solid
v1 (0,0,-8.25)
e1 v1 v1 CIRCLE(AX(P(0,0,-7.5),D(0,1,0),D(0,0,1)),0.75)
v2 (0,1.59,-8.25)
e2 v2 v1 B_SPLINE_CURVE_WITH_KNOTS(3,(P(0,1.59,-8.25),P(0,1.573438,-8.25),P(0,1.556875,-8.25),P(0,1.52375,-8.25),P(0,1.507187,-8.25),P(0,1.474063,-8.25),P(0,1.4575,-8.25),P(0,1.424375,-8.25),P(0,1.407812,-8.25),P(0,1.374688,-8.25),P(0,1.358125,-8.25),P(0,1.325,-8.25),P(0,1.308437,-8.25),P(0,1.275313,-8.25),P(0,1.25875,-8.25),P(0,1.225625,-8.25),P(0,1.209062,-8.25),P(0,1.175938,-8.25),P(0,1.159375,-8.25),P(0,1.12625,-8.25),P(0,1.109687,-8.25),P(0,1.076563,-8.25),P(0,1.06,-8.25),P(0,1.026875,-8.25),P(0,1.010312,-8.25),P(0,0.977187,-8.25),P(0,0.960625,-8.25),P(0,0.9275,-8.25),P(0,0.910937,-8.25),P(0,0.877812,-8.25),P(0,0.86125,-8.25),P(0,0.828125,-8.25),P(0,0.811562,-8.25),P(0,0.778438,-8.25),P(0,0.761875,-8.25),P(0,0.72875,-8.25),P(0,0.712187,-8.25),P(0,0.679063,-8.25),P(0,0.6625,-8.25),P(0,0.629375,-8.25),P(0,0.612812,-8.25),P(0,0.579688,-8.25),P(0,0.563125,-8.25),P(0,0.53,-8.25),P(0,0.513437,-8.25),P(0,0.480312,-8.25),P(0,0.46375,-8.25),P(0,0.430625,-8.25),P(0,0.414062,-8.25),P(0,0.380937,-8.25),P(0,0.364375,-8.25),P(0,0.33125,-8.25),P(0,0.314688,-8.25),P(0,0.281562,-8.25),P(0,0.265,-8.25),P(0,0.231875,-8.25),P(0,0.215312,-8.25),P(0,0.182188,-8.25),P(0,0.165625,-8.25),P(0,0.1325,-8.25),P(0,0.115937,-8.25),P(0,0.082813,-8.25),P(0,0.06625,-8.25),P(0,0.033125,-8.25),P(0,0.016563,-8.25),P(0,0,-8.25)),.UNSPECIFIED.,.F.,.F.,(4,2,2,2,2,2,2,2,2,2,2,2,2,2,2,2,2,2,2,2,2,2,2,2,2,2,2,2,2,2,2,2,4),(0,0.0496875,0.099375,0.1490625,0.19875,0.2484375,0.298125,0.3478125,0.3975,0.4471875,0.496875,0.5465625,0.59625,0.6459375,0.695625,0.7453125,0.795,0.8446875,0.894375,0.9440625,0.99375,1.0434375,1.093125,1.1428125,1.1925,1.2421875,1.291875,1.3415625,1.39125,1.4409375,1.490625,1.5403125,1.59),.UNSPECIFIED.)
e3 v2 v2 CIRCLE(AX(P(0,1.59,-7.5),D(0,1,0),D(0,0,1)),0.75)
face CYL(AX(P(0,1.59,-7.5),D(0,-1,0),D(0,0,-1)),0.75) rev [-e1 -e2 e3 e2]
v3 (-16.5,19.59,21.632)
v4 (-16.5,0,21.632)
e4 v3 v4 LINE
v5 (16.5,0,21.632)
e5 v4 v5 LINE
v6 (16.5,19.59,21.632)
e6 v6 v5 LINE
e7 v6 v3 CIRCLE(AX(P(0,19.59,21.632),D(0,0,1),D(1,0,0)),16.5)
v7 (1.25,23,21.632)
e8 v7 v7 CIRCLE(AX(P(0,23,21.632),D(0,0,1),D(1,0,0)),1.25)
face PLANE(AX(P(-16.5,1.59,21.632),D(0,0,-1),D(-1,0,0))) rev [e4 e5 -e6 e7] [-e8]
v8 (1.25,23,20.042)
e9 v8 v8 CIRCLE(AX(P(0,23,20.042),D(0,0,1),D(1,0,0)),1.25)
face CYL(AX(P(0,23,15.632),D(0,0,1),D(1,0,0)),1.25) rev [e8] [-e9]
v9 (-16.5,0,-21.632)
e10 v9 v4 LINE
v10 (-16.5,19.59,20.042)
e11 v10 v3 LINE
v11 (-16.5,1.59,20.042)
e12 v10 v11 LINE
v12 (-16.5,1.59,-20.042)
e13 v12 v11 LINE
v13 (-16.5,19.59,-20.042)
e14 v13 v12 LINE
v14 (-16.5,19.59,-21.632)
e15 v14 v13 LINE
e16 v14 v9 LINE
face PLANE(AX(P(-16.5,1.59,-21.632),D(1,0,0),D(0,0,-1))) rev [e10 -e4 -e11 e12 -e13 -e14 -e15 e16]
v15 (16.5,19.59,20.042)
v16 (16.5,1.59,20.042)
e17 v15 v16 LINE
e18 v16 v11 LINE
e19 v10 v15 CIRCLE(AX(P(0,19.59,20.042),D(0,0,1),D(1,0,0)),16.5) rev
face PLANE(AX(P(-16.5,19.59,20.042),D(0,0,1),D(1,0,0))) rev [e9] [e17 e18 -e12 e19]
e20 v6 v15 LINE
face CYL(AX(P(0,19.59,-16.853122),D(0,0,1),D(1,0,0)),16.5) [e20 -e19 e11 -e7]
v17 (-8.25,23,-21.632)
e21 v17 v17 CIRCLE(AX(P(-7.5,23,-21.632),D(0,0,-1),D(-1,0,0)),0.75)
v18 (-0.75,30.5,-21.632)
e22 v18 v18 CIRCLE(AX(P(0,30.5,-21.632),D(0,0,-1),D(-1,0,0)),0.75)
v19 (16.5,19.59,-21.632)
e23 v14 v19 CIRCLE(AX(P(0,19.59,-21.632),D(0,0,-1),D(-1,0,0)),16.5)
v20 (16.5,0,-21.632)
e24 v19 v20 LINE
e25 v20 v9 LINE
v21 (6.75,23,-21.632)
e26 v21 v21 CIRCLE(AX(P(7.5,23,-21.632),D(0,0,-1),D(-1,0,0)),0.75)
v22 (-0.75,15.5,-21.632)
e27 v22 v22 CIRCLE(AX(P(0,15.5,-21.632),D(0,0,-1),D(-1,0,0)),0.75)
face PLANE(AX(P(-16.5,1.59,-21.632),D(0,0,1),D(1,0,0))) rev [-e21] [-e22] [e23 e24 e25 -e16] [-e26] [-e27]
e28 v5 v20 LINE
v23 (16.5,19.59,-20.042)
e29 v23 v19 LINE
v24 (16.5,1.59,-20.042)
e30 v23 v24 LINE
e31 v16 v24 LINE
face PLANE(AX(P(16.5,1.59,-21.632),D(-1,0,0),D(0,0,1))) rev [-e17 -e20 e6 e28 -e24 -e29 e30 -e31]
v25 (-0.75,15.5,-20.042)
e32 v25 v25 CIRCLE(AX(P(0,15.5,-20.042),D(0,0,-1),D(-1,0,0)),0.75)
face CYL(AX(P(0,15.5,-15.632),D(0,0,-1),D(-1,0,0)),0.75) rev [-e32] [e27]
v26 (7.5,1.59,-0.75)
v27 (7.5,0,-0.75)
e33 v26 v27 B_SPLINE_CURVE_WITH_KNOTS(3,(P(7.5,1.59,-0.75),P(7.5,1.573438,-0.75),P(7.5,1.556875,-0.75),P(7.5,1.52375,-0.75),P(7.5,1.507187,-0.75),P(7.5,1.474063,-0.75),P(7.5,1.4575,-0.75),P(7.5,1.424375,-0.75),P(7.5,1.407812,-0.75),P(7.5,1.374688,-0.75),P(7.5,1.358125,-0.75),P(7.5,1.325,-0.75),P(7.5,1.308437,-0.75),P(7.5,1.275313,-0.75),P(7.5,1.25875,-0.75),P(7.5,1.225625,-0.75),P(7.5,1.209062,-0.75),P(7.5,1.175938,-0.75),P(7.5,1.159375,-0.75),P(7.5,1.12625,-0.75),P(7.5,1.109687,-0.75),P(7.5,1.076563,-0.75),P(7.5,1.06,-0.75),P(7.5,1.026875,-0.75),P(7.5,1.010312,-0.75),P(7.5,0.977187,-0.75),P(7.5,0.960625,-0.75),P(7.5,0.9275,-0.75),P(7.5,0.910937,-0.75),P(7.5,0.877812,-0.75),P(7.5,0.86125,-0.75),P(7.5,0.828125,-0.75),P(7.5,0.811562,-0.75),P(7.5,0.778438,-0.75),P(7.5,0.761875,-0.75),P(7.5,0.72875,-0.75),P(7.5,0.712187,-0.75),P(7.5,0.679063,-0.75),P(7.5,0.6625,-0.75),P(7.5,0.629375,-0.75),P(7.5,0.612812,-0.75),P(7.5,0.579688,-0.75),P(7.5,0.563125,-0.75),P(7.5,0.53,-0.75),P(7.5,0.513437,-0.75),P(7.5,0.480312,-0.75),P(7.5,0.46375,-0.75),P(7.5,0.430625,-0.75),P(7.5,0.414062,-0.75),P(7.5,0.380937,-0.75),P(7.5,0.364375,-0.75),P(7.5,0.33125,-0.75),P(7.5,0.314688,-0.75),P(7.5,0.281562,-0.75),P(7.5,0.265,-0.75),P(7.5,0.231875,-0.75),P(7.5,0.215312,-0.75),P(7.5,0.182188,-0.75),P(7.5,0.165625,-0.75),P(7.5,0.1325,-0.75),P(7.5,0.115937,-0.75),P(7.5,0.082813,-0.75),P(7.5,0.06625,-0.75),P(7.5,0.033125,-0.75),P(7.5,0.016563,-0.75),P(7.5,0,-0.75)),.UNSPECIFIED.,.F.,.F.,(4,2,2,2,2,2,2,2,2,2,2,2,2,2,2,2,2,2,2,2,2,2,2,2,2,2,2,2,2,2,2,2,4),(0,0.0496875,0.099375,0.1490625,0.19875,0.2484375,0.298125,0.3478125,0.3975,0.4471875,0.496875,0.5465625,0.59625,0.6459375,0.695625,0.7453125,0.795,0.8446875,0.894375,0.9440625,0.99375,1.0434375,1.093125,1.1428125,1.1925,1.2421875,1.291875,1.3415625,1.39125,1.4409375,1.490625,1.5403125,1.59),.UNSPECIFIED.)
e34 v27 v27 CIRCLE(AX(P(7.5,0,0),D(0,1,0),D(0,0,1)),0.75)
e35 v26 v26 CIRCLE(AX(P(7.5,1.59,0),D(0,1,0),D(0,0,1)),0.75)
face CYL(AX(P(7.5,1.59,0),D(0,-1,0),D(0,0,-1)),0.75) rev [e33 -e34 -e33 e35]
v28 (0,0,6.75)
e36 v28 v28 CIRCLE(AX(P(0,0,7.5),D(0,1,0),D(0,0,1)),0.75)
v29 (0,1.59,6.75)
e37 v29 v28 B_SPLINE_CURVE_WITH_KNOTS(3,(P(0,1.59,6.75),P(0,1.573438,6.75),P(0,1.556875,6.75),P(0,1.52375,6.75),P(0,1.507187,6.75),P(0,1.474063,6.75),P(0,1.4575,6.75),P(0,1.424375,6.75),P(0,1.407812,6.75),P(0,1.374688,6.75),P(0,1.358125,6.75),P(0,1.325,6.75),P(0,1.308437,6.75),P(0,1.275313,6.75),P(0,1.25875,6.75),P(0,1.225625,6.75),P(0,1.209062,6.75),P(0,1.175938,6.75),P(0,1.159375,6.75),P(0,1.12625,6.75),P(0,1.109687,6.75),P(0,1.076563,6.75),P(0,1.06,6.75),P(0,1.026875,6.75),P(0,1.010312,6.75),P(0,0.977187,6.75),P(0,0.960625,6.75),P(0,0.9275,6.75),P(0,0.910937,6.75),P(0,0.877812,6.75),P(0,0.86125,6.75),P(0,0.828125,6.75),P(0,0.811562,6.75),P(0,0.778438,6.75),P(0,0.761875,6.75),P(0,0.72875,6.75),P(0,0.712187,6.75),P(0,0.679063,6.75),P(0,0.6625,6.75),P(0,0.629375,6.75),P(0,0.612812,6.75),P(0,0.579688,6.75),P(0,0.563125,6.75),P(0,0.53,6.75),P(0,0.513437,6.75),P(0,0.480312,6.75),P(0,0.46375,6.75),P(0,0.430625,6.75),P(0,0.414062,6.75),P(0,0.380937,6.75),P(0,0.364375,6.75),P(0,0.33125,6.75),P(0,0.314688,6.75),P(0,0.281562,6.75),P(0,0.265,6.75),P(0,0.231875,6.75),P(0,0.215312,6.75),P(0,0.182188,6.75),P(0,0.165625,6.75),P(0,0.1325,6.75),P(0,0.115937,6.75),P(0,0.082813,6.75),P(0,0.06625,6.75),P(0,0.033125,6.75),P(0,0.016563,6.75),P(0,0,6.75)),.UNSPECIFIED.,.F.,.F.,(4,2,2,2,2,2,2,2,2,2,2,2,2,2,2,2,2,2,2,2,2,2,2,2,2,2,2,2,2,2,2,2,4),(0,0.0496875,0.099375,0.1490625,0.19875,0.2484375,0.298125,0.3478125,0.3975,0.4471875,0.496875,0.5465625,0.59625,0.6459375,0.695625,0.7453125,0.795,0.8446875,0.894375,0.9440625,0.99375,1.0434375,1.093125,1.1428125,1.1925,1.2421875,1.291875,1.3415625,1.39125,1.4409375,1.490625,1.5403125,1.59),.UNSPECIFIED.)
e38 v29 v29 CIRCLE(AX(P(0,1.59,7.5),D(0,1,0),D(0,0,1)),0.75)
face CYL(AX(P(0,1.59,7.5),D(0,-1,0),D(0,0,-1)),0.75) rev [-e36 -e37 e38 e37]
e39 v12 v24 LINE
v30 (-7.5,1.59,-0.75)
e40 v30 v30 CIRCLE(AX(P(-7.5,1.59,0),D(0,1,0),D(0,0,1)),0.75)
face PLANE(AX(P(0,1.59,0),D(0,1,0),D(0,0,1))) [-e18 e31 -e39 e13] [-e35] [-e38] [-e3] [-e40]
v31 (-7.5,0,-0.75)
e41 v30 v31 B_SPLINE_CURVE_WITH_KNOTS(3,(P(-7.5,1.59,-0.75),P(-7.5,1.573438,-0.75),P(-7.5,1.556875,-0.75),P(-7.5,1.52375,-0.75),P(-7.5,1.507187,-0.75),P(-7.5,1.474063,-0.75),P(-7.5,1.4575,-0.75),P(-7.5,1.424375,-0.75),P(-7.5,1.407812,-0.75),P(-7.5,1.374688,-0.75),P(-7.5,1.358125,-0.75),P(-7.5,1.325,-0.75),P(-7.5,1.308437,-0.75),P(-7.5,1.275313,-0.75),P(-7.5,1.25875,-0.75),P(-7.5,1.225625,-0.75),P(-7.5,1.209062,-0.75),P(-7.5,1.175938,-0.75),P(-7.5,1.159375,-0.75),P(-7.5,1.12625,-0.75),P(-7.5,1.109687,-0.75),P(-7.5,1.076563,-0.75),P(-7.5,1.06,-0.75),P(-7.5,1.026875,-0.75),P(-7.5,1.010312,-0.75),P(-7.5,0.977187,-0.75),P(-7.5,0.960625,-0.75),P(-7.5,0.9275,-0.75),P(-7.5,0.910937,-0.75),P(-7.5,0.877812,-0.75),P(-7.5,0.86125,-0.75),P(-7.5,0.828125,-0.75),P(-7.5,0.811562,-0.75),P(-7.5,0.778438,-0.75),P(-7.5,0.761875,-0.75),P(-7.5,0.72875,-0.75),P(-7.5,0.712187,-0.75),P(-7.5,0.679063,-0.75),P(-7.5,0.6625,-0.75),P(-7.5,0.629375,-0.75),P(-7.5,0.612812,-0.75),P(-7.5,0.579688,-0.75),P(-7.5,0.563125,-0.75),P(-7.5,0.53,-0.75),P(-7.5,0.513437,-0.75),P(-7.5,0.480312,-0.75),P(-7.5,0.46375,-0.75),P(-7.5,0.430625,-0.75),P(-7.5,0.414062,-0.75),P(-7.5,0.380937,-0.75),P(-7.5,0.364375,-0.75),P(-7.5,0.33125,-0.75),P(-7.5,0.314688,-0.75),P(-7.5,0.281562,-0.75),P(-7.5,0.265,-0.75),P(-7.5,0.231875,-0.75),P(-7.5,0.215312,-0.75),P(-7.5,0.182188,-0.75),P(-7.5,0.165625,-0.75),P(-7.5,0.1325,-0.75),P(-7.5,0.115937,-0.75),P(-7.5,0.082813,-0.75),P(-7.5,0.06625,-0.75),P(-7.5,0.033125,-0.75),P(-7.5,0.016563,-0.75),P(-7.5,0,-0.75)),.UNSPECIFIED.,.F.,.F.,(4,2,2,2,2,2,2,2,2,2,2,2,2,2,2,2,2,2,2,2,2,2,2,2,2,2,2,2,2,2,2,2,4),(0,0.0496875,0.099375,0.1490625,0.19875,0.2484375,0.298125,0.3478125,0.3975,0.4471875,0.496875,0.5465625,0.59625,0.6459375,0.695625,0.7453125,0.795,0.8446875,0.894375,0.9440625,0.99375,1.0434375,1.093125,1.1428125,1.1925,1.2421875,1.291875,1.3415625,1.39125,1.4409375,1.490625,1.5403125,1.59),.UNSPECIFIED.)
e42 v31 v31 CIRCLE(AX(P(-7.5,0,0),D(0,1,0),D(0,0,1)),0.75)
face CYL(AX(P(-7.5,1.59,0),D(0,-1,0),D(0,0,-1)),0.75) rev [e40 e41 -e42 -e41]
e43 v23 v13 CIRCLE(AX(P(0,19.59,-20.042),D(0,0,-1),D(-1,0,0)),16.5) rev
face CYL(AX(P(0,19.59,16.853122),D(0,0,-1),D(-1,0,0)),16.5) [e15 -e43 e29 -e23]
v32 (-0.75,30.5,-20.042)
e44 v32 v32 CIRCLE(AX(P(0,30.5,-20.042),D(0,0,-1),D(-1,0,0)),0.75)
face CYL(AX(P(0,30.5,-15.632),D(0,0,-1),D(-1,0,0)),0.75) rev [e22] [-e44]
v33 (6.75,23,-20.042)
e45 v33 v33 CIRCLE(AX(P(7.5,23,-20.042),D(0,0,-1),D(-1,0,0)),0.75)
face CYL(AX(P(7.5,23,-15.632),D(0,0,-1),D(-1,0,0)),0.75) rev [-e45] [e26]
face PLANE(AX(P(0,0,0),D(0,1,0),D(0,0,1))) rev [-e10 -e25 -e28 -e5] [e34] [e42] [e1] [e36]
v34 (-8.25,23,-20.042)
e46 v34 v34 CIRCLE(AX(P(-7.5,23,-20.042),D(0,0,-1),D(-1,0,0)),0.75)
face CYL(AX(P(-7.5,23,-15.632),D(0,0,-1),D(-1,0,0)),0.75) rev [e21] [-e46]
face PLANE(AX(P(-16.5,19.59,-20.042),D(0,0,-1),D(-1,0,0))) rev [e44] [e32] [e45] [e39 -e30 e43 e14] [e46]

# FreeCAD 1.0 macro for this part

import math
import FreeCAD as App
import Part
import Sketcher


def add_polygon(sketch, points):
    """Adds a closed chain of lines whose ends are joined by coincident constraints."""
    first, n = sketch.GeometryCount, len(points)
    for a, b in zip(points, points[1:] + points[:1]):
        sketch.addGeometry(Part.LineSegment(App.Vector(*a, 0), App.Vector(*b, 0)), False)
    for i in range(n):
        sketch.addConstraint(Sketcher.Constraint("Coincident", first + i, 2, first + (i + 1) % n, 1))

doc = App.newDocument("Part")
body = doc.addObject("PartDesign::Body", "Body")

sketch1 = doc.addObject("Sketcher::SketchObject", "Sketch")
body.addObject(sketch1)
sketch1.AttachmentSupport = (doc.XZ_Plane, [""])
sketch1.MapMode = "FlatFace"
add_polygon(sketch1, [(-16.5, -21.6), (-16.5, 21.6), (16.5, 21.6), (16.5, -21.6)])
sketch1.addGeometry(Part.Circle(App.Vector(0, 7.5, 0), App.Vector(0, 0, 1), 0.8), False)
sketch1.addGeometry(Part.Circle(App.Vector(-7.5, 0, 0), App.Vector(0, 0, 1), 0.8), False)
sketch1.addGeometry(Part.Circle(App.Vector(7.5, 0, 0), App.Vector(0, 0, 1), 0.8), False)
sketch1.addGeometry(Part.Circle(App.Vector(0, -7.5, 0), App.Vector(0, 0, 1), 0.8), False)
sketch1.addConstraint(Sketcher.Constraint("Vertical", 0))
sketch1.addConstraint(Sketcher.Constraint("Horizontal", 1))
sketch1.addConstraint(Sketcher.Constraint("Vertical", 2))
sketch1.addConstraint(Sketcher.Constraint("Horizontal", 3))
sketch1.addConstraint(Sketcher.Constraint("Equal", 4, 5))
sketch1.addConstraint(Sketcher.Constraint("Equal", 5, 6))
sketch1.addConstraint(Sketcher.Constraint("Equal", 6, 7))
sketch1.addConstraint(Sketcher.Constraint("Symmetric", 5, 3, 6, 3, -1, 1))
sketch1.addConstraint(Sketcher.Constraint("Symmetric", 4, 3, 7, 3, -1, 1))
sketch1.addConstraint(Sketcher.Constraint("Symmetric", 0, 2, 2, 2, -1, 1))
sketch1.addConstraint(Sketcher.Constraint("PointOnObject", 4, 3, -2))
sketch1.addConstraint(Sketcher.Constraint("PointOnObject", 5, 3, -1))
sketch1.addConstraint(Sketcher.Constraint("Diameter", 4, 1.5))
sketch1.addConstraint(Sketcher.Constraint("DistanceX", 1, 1, 1, 2, 33.0))
sketch1.addConstraint(Sketcher.Constraint("DistanceX", 5, 3, 6, 3, 15.0))
sketch1.addConstraint(Sketcher.Constraint("DistanceY", 7, 3, 4, 3, 15.0))
sketch1.addConstraint(Sketcher.Constraint("DistanceY", 0, 1, 0, 2, 43.264))
pad1 = doc.addObject("PartDesign::Pad", "Pad")
body.addObject(pad1)
pad1.Profile = sketch1
pad1.Length = 1.59
pad1.Reversed = True

sketch2 = doc.addObject("Sketcher::SketchObject", "Sketch001")
body.addObject(sketch2)
sketch2.AttachmentSupport = (doc.XZ_Plane, [""])
sketch2.MapMode = "FlatFace"
sketch2.AttachmentOffset = App.Placement(App.Vector(0, 0, -1.59), App.Rotation())
add_polygon(sketch2, [(-16.5, -21.6), (-16.5, -20), (16.5, -20), (16.5, -21.6)])
add_polygon(sketch2, [(-16.5, 20), (-16.5, 21.6), (16.5, 21.6), (16.5, 20)])
sketch2.addConstraint(Sketcher.Constraint("Vertical", 0))
sketch2.addConstraint(Sketcher.Constraint("Horizontal", 1))
sketch2.addConstraint(Sketcher.Constraint("Vertical", 2))
sketch2.addConstraint(Sketcher.Constraint("Horizontal", 3))
sketch2.addConstraint(Sketcher.Constraint("Vertical", 4))
sketch2.addConstraint(Sketcher.Constraint("Horizontal", 5))
sketch2.addConstraint(Sketcher.Constraint("Vertical", 6))
sketch2.addConstraint(Sketcher.Constraint("Horizontal", 7))
sketch2.addConstraint(Sketcher.Constraint("Symmetric", 2, 2, 4, 2, -1, 1))
sketch2.addConstraint(Sketcher.Constraint("Symmetric", 0, 2, 6, 2, -1, 1))
sketch2.addConstraint(Sketcher.Constraint("Vertical", 3, 2, 4, 2))
sketch2.addConstraint(Sketcher.Constraint("DistanceX", 1, 1, 1, 2, 33.0))
sketch2.addConstraint(Sketcher.Constraint("DistanceY", 0, 1, 0, 2, 1.59))
sketch2.addConstraint(Sketcher.Constraint("DistanceY", 0, 2, -1, 1, 20.042))
pad2 = doc.addObject("PartDesign::Pad", "Pad001")
body.addObject(pad2)
pad2.Profile = sketch2
pad2.Length = 18
pad2.Reversed = True

sketch3 = doc.addObject("Sketcher::SketchObject", "Sketch002")
body.addObject(sketch3)
sketch3.AttachmentSupport = (doc.XY_Plane, [""])
sketch3.MapMode = "FlatFace"
sketch3.AttachmentOffset = App.Placement(App.Vector(0, 0, 21.632), App.Rotation())
sketch3.addGeometry(Part.LineSegment(App.Vector(-16, 20, 0), App.Vector(16, 20, 0)), False)
sketch3.addGeometry(Part.ArcOfCircle(Part.Circle(App.Vector(0, 20, 0), App.Vector(0, 0, 1), 16), math.radians(0), math.radians(180)), False)
sketch3.addConstraint(Sketcher.Constraint("Coincident", 0, 1, 1, 2))
sketch3.addConstraint(Sketcher.Constraint("Coincident", 1, 1, 0, 2))
sketch3.addConstraint(Sketcher.Constraint("Horizontal", 0))
sketch3.addConstraint(Sketcher.Constraint("PointOnObject", 1, 3, -2))
sketch3.addConstraint(Sketcher.Constraint("Horizontal", 1, 3, 0, 1))
sketch3.addConstraint(Sketcher.Constraint("Radius", 1, 16.5))
sketch3.addConstraint(Sketcher.Constraint("DistanceY", -1, 1, 1, 3, 19.59))
pad3 = doc.addObject("PartDesign::Pad", "Pad002")
body.addObject(pad3)
pad3.Profile = sketch3
pad3.Length = 1.59
pad3.Reversed = True

sketch4 = doc.addObject("Sketcher::SketchObject", "Sketch003")
body.addObject(sketch4)
sketch4.AttachmentSupport = (doc.XY_Plane, [""])
sketch4.MapMode = "FlatFace"
sketch4.AttachmentOffset = App.Placement(App.Vector(0, 0, -20.042), App.Rotation())
sketch4.addGeometry(Part.LineSegment(App.Vector(16, 20, 0), App.Vector(-16, 20, 0)), False)
sketch4.addGeometry(Part.ArcOfCircle(Part.Circle(App.Vector(0, 20, 0), App.Vector(0, 0, 1), 16), math.radians(0), math.radians(180)), False)
sketch4.addConstraint(Sketcher.Constraint("Coincident", 0, 1, 1, 1))
sketch4.addConstraint(Sketcher.Constraint("Coincident", 1, 2, 0, 2))
sketch4.addConstraint(Sketcher.Constraint("Horizontal", 0))
sketch4.addConstraint(Sketcher.Constraint("PointOnObject", 1, 3, -2))
sketch4.addConstraint(Sketcher.Constraint("Horizontal", 1, 3, 0, 1))
sketch4.addConstraint(Sketcher.Constraint("Radius", 1, 16.5))
sketch4.addConstraint(Sketcher.Constraint("DistanceY", -1, 1, 1, 3, 19.59))
pad4 = doc.addObject("PartDesign::Pad", "Pad003")
body.addObject(pad4)
pad4.Profile = sketch4
pad4.Length = 1.59
pad4.Reversed = True

sketch5 = doc.addObject("Sketcher::SketchObject", "Sketch004")
body.addObject(sketch5)
sketch5.AttachmentSupport = (doc.XY_Plane, [""])
sketch5.MapMode = "FlatFace"
sketch5.AttachmentOffset = App.Placement(App.Vector(0, 0, 21.632), App.Rotation())
sketch5.addGeometry(Part.Circle(App.Vector(0, 23, 0), App.Vector(0, 0, 1), 1.2), False)
sketch5.addConstraint(Sketcher.Constraint("PointOnObject", 0, 3, -2))
sketch5.addConstraint(Sketcher.Constraint("Diameter", 0, 2.5))
sketch5.addConstraint(Sketcher.Constraint("DistanceY", -1, 1, 0, 3, 23.0))
pocket1 = doc.addObject("PartDesign::Pocket", "Pocket")
body.addObject(pocket1)
pocket1.Profile = sketch5
pocket1.Length = 6

sketch6 = doc.addObject("Sketcher::SketchObject", "Sketch005")
body.addObject(sketch6)
sketch6.AttachmentSupport = (doc.XY_Plane, [""])
sketch6.MapMode = "FlatFace"
sketch6.AttachmentOffset = App.Placement(App.Vector(0, 0, -21.632), App.Rotation())
sketch6.addGeometry(Part.Circle(App.Vector(0, 30.5, 0), App.Vector(0, 0, 1), 0.8), False)
sketch6.addGeometry(Part.Circle(App.Vector(0, 15.5, 0), App.Vector(0, 0, 1), 0.8), False)
sketch6.addGeometry(Part.Circle(App.Vector(-7.5, 23, 0), App.Vector(0, 0, 1), 0.8), False)
sketch6.addGeometry(Part.Circle(App.Vector(7.5, 23, 0), App.Vector(0, 0, 1), 0.8), False)
sketch6.addConstraint(Sketcher.Constraint("Equal", 0, 1))
sketch6.addConstraint(Sketcher.Constraint("Equal", 1, 2))
sketch6.addConstraint(Sketcher.Constraint("Equal", 2, 3))
sketch6.addConstraint(Sketcher.Constraint("Symmetric", 2, 3, 3, 3, -2))
sketch6.addConstraint(Sketcher.Constraint("PointOnObject", 0, 3, -2))
sketch6.addConstraint(Sketcher.Constraint("PointOnObject", 1, 3, -2))
sketch6.addConstraint(Sketcher.Constraint("Diameter", 0, 1.5))
sketch6.addConstraint(Sketcher.Constraint("DistanceY", -1, 1, 2, 3, 23.0))
sketch6.addConstraint(Sketcher.Constraint("DistanceY", 1, 3, 0, 3, 15.0))
sketch6.addConstraint(Sketcher.Constraint("DistanceX", 2, 3, 3, 3, 15.0))
sketch6.addConstraint(Sketcher.Constraint("DistanceY", -1, 1, 0, 3, 30.5))
pocket2 = doc.addObject("PartDesign::Pocket", "Pocket001")
body.addObject(pocket2)
pocket2.Profile = sketch6
pocket2.Length = 6
pocket2.Reversed = True

doc.recompute()
